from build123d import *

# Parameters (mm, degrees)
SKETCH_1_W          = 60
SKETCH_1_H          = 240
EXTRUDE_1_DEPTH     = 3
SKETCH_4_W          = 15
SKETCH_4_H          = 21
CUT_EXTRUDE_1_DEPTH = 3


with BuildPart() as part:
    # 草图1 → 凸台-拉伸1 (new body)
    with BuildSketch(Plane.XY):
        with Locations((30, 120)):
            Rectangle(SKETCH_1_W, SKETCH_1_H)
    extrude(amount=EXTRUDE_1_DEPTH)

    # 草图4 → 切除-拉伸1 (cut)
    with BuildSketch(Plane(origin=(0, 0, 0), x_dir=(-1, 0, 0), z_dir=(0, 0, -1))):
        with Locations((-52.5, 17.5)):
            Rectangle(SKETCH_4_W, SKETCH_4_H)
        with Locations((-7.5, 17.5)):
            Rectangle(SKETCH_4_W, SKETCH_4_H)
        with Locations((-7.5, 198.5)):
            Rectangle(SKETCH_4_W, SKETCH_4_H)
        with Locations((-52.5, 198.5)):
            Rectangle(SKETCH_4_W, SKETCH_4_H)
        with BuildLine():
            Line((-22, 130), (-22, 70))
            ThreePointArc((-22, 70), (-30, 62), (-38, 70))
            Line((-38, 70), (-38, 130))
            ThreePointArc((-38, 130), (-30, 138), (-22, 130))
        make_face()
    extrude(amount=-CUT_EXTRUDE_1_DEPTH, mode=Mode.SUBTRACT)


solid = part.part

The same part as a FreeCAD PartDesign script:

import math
import FreeCAD as App
import Part
import Sketcher
from FreeCAD import Vector
Q = App.Units.Quantity


def add_polygon(sketch, points):
    """Adds a closed chain of lines whose ends are joined by coincident constraints."""
    first, n = sketch.GeometryCount, len(points)
    for a, b in zip(points, points[1:] + points[:1]):
        sketch.addGeometry(Part.LineSegment(App.Vector(*a, 0), App.Vector(*b, 0)), False)
    for i in range(n):
        sketch.addConstraint(Sketcher.Constraint("Coincident", first + i, 2, first + (i + 1) % n, 1))

doc = App.newDocument("Part")
body = doc.addObject("PartDesign::Body", "Body")

sketch1 = body.newObject("Sketcher::SketchObject", "Sketch")
sketch1.AttachmentSupport = (doc.getObject("XY_Plane"), [""])
sketch1.MapMode = "FlatFace"
add_polygon(sketch1, [(0, 240), (0, 0), (60, 0), (60, 240)])
sketch1.addConstraint([
    Sketcher.Constraint("Vertical", 0),
    Sketcher.Constraint("Horizontal", 1),
    Sketcher.Constraint("Vertical", 2),
    Sketcher.Constraint("Horizontal", 3),
    Sketcher.Constraint("Coincident", 0, 2, -1, 1),
    Sketcher.Constraint("DistanceX", 1, 1, 1, 2, Q("60 mm")),
    Sketcher.Constraint("DistanceY", 0, 2, 0, 1, Q("240 mm")),
])
pad1 = body.newObject("PartDesign::Pad", "Pad")
pad1.Profile = sketch1
pad1.Length = 3

sketch2 = body.newObject("Sketcher::SketchObject", "Sketch001")
sketch2.AttachmentSupport = (doc.getObject("XY_Plane"), [""])
sketch2.MapMode = "FlatFace"
add_polygon(sketch2, [(60, 28), (60, 7), (45, 7), (45, 28)])
add_polygon(sketch2, [(15, 28), (15, 7), (0, 7), (0, 28)])
add_polygon(sketch2, [(15, 209), (15, 188), (0, 188), (0, 209)])
add_polygon(sketch2, [(60, 209), (60, 188), (45, 188), (45, 209)])
sketch2.addGeometry(Part.LineSegment(Vector(22, 70, 0), Vector(22, 130, 0)), False)
sketch2.addGeometry(Part.ArcOfCircle(Part.Circle(Vector(30, 130, 0), Vector(0, 0, 1), 8), math.radians(0), math.radians(180)), False)
sketch2.addGeometry(Part.LineSegment(Vector(38, 130, 0), Vector(38, 70, 0)), False)
sketch2.addGeometry(Part.ArcOfCircle(Part.Circle(Vector(30, 70, 0), Vector(0, 0, 1), 8), math.radians(180), math.radians(360)), False)
sketch2.addConstraint([
    Sketcher.Constraint("Tangent", 16, 2, 17, 2),
    Sketcher.Constraint("Tangent", 17, 1, 18, 1),
    Sketcher.Constraint("Tangent", 18, 2, 19, 2),
    Sketcher.Constraint("Tangent", 19, 1, 16, 1),
    Sketcher.Constraint("Vertical", 0),
    Sketcher.Constraint("Horizontal", 1),
    Sketcher.Constraint("Vertical", 2),
    Sketcher.Constraint("Horizontal", 3),
    Sketcher.Constraint("Vertical", 4),
    Sketcher.Constraint("Horizontal", 5),
    Sketcher.Constraint("Vertical", 6),
    Sketcher.Constraint("Horizontal", 7),
    Sketcher.Constraint("Vertical", 8),
    Sketcher.Constraint("Horizontal", 9),
    Sketcher.Constraint("Vertical", 10),
    Sketcher.Constraint("Horizontal", 11),
    Sketcher.Constraint("Vertical", 12),
    Sketcher.Constraint("Horizontal", 13),
    Sketcher.Constraint("Vertical", 14),
    Sketcher.Constraint("Horizontal", 15),
    Sketcher.Constraint("Vertical", 16),
    Sketcher.Constraint("Vertical", 18),
    Sketcher.Constraint("PointOnObject", 5, 2, -2),
    Sketcher.Constraint("PointOnObject", 9, 2, -2),
    Sketcher.Constraint("Horizontal", 1, 2, 4, 2),
    Sketcher.Constraint("Horizontal", 3, 2, 6, 2),
    Sketcher.Constraint("Horizontal", 9, 2, 12, 2),
    Sketcher.Constraint("Horizontal", 11, 2, 14, 2),
    Sketcher.Constraint("Vertical", 7, 2, 8, 2),
    Sketcher.Constraint("Vertical", 3, 2, 12, 2),
    Sketcher.Constraint("Vertical", 2, 2, 13, 2),
    Sketcher.Constraint("Equal", 3, 5),
    Sketcher.Constraint("Equal", 6, 8),
    Sketcher.Constraint("Radius", 17, Q("8 mm")),
    Sketcher.Constraint("DistanceX", 1, 2, 1, 1, Q("15 mm")),
    Sketcher.Constraint("DistanceY", 0, 2, 0, 1, Q("21 mm")),
    Sketcher.Constraint("DistanceY", 16, 1, 16, 2, Q("60 mm")),
    Sketcher.Constraint("DistanceX", -1, 1, 17, 3, Q("30 mm")),
    Sketcher.Constraint("DistanceY", -1, 1, 17, 3, Q("130 mm")),
    Sketcher.Constraint("DistanceX", -1, 1, 0, 2, Q("60 mm")),
    Sketcher.Constraint("DistanceY", -1, 1, 0, 2, Q("7 mm")),
    Sketcher.Constraint("DistanceY", -1, 1, 8, 2, Q("188 mm")),
])
pocket1 = body.newObject("PartDesign::Pocket", "Pocket")
pocket1.Profile = sketch2
pocket1.Length = 3
pocket1.Reversed = True

doc.recompute()
